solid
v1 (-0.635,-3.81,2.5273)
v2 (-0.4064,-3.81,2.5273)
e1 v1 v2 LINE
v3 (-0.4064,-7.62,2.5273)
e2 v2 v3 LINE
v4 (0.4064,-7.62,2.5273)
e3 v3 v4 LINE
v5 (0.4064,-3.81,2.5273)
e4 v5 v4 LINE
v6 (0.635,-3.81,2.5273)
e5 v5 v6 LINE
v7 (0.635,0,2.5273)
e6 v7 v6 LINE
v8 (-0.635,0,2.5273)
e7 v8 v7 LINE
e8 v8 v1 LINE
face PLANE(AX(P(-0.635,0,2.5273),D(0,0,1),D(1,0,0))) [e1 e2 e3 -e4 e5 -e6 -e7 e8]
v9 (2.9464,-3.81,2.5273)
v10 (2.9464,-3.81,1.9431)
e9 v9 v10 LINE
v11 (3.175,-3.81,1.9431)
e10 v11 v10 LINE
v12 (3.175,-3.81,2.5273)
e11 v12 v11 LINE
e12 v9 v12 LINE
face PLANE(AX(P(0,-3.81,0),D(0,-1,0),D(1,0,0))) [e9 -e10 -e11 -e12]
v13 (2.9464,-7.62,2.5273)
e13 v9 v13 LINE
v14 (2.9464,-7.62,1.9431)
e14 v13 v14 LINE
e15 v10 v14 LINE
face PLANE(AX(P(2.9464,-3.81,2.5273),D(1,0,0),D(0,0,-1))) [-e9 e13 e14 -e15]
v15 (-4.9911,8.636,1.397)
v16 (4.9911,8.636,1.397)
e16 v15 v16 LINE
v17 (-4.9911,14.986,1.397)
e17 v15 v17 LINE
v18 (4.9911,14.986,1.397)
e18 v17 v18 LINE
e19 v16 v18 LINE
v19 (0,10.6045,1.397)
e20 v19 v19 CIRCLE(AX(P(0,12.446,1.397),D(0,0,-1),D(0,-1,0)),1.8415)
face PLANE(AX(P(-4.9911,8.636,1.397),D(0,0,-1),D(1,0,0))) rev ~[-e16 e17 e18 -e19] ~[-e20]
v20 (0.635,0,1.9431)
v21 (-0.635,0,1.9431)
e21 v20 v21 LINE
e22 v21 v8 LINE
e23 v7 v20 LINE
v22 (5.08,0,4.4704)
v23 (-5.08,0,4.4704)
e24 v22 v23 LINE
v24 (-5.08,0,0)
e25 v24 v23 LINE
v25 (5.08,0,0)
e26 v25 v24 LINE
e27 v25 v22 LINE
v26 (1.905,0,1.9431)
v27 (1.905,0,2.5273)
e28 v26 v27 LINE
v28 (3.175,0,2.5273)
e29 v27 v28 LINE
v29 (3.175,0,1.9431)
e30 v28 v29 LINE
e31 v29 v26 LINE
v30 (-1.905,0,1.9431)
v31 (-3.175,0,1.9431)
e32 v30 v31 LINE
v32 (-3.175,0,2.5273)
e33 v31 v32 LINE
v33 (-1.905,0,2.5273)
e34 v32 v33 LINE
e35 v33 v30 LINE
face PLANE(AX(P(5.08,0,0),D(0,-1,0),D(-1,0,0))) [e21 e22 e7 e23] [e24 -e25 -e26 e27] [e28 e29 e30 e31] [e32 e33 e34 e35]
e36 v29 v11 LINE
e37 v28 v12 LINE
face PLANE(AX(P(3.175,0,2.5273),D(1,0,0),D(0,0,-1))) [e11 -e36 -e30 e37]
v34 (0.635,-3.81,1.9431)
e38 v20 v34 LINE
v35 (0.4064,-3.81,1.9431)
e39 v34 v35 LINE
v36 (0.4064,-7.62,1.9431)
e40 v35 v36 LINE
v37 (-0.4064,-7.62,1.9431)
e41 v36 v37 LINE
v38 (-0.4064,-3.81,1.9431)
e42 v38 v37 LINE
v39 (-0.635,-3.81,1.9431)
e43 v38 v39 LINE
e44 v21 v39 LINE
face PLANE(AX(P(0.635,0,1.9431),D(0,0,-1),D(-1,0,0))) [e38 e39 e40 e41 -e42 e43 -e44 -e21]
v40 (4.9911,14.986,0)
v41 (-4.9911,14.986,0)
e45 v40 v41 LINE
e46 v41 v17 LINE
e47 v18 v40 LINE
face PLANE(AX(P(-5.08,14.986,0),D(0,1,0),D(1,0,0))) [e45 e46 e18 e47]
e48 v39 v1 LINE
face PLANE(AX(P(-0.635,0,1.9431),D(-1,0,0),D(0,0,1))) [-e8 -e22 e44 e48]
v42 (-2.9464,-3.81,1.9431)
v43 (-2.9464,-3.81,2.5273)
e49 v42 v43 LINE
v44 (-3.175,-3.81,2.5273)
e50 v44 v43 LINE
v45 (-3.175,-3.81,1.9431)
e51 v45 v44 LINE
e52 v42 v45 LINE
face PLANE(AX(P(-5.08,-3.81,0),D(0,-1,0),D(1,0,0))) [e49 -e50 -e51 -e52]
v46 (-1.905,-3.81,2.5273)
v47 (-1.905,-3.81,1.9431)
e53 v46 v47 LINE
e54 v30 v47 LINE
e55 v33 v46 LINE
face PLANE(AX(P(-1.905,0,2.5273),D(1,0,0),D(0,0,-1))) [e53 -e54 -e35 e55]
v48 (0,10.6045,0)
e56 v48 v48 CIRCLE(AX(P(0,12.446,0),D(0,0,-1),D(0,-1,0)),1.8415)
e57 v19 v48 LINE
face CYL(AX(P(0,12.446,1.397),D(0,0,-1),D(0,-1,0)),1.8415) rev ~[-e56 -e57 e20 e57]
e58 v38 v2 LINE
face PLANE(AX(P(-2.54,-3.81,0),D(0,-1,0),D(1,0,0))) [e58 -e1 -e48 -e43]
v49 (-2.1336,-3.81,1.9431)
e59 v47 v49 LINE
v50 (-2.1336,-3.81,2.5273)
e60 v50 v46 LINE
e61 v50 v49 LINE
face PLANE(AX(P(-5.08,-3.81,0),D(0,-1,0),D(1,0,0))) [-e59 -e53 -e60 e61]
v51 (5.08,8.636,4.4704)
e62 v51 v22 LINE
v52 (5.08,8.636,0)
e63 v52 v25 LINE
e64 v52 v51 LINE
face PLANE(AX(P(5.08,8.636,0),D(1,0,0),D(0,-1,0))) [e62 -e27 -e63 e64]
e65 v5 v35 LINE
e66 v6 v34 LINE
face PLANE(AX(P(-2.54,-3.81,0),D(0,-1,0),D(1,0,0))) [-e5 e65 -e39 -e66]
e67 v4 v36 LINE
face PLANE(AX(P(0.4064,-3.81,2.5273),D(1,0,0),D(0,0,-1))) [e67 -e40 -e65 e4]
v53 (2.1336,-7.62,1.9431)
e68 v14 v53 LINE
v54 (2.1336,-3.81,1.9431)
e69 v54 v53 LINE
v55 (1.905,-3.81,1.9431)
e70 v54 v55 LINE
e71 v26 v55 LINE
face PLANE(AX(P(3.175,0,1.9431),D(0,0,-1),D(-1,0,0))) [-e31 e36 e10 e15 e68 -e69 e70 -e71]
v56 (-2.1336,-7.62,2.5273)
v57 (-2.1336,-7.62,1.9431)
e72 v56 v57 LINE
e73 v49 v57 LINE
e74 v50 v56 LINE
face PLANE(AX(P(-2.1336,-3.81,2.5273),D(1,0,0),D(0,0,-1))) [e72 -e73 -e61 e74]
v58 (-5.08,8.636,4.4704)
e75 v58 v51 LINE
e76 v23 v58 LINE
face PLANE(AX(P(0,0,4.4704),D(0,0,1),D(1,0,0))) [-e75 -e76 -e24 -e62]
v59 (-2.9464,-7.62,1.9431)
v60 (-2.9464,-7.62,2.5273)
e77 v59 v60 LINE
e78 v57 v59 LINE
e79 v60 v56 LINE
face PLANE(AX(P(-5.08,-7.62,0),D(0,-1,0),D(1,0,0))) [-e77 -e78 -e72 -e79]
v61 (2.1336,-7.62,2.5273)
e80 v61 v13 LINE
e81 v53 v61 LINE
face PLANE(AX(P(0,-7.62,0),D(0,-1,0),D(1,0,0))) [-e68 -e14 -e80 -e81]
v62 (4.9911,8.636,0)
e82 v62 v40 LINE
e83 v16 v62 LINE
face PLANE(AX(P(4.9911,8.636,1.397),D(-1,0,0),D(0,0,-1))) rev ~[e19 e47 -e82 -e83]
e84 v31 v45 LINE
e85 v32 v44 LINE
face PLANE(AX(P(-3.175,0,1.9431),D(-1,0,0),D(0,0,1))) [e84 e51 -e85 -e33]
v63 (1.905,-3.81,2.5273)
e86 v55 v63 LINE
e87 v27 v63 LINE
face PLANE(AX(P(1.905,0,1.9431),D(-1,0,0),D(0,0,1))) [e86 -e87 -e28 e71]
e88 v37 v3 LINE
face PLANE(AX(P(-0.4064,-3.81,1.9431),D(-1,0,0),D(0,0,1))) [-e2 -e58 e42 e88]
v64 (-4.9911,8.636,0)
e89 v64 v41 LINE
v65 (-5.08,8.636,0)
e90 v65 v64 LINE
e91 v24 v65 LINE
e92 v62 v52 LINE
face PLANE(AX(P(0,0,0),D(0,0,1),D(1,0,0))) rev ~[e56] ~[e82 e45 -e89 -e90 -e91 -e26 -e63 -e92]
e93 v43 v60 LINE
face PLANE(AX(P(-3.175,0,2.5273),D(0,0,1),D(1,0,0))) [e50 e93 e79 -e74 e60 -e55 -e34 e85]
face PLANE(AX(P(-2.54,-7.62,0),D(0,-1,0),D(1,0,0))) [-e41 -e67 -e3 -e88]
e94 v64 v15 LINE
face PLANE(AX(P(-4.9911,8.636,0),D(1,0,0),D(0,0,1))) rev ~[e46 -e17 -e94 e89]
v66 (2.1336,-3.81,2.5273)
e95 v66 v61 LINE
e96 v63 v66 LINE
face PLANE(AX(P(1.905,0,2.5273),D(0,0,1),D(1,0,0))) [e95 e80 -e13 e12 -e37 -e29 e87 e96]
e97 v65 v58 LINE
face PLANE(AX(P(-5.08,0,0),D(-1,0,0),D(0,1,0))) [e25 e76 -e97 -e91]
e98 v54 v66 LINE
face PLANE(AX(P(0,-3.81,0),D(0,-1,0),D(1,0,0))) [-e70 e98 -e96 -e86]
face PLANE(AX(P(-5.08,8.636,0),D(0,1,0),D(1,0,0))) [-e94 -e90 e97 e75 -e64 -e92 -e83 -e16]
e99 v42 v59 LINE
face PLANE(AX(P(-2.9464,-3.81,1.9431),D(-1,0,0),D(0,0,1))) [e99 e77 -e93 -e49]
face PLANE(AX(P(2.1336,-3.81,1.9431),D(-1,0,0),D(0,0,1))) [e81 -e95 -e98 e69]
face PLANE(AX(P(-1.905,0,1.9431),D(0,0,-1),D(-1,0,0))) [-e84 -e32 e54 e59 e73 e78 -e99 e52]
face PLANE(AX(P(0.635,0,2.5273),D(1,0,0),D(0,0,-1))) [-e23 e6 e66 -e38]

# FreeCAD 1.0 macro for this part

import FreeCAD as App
import Part
import Sketcher
Q = App.Units.Quantity


def add_polygon(sketch, points):
    """Adds a closed chain of lines whose ends are joined by coincident constraints."""
    first, n = sketch.GeometryCount, len(points)
    for a, b in zip(points, points[1:] + points[:1]):
        sketch.addGeometry(Part.LineSegment(App.Vector(*a, 0), App.Vector(*b, 0)), False)
    for i in range(n):
        sketch.addConstraint(Sketcher.Constraint("Coincident", first + i, 2, first + (i + 1) % n, 1))

doc = App.newDocument("Part")
body = doc.addObject("PartDesign::Body", "Body")

sketch1 = doc.addObject("Sketcher::SketchObject", "Sketch")
body.addObject(sketch1)
sketch1.AttachmentSupport = (doc.XY_Plane, [""])
sketch1.MapMode = "FlatFace"
add_polygon(sketch1, [(5, 9), (-5, 9), (-5, 0), (5, 0)])
sketch1.addConstraint(Sketcher.Constraint("Horizontal", 0))
sketch1.addConstraint(Sketcher.Constraint("Vertical", 1))
sketch1.addConstraint(Sketcher.Constraint("Horizontal", 2))
sketch1.addConstraint(Sketcher.Constraint("Vertical", 3))
sketch1.addConstraint(Sketcher.Constraint("Symmetric", 1, 2, 2, 2, -1, 1))
sketch1.addConstraint(Sketcher.Constraint("DistanceX", 0, 2, 0, 1, Q("0.4 in")))
sketch1.addConstraint(Sketcher.Constraint("DistanceY", 1, 2, 1, 1, Q("0.34 in")))
pad1 = doc.addObject("PartDesign::Pad", "Pad")
body.addObject(pad1)
pad1.Profile = sketch1
pad1.Length = Q("0.176 in")

sketch2 = doc.addObject("Sketcher::SketchObject", "Sketch001")
body.addObject(sketch2)
sketch2.AttachmentSupport = (doc.XZ_Plane, [""])
sketch2.MapMode = "FlatFace"
sketch2.AttachmentOffset = App.Placement(App.Vector(0, 0, -0.34 * 25.4), App.Rotation())
add_polygon(sketch2, [(-5, 0), (-5, 1.4), (5, 1.4), (5, 0)])
sketch2.addConstraint(Sketcher.Constraint("Vertical", 0))
sketch2.addConstraint(Sketcher.Constraint("Horizontal", 1))
sketch2.addConstraint(Sketcher.Constraint("Vertical", 2))
sketch2.addConstraint(Sketcher.Constraint("Horizontal", 3))
sketch2.addConstraint(Sketcher.Constraint("Symmetric", 2, 2, 3, 2, -1, 1))
sketch2.addConstraint(Sketcher.Constraint("DistanceX", 1, 1, 1, 2, Q("0.393 in")))
sketch2.addConstraint(Sketcher.Constraint("DistanceY", 0, 1, 0, 2, Q("0.055 in")))
pad2 = doc.addObject("PartDesign::Pad", "Pad001")
body.addObject(pad2)
pad2.Profile = sketch2
pad2.Length = Q("0.25 in")
pad2.Reversed = True

sketch3 = doc.addObject("Sketcher::SketchObject", "Sketch002")
body.addObject(sketch3)
sketch3.AttachmentSupport = (doc.XY_Plane, [""])
sketch3.MapMode = "FlatFace"
sketch3.AttachmentOffset = App.Placement(App.Vector(0, 0, 0.055 * 25.4), App.Rotation())
sketch3.addGeometry(Part.Circle(App.Vector(0, 12.4, 0), App.Vector(0, 0, 1), 1.8), False)
sketch3.addConstraint(Sketcher.Constraint("PointOnObject", 0, 3, -2))
sketch3.addConstraint(Sketcher.Constraint("Diameter", 0, Q("0.145 in")))
sketch3.addConstraint(Sketcher.Constraint("DistanceY", -1, 1, 0, 3, Q("0.49 in")))
doc.recompute()
hole = doc.addObject("PartDesign::Hole", "Hole")
body.addObject(hole)
hole.Profile = sketch3
hole.ThreadType = "None"
hole.Diameter = Q("0.145 in")
hole.DepthType = "ThroughAll"

sketch4 = doc.addObject("Sketcher::SketchObject", "Sketch003")
body.addObject(sketch4)
sketch4.AttachmentSupport = (doc.XZ_Plane, [""])
sketch4.MapMode = "FlatFace"
add_polygon(sketch4, [(-1.9, 2.5), (-3.2, 2.5), (-3.2, 1.9), (-1.9, 1.9)])
sketch4.addConstraint(Sketcher.Constraint("Horizontal", 0))
sketch4.addConstraint(Sketcher.Constraint("Vertical", 1))
sketch4.addConstraint(Sketcher.Constraint("Horizontal", 2))
sketch4.addConstraint(Sketcher.Constraint("Vertical", 3))
sketch4.addConstraint(Sketcher.Constraint("DistanceX", 0, 2, 0, 1, Q("0.05 in")))
sketch4.addConstraint(Sketcher.Constraint("DistanceY", 1, 2, 1, 1, Q("0.023 in")))
sketch4.addConstraint(Sketcher.Constraint("DistanceX", 2, 2, -1, 1, Q("0.075 in")))
sketch4.addConstraint(Sketcher.Constraint("DistanceY", -1, 1, 0, 2, Q("0.0995 in")))
pad3 = doc.addObject("PartDesign::Pad", "Pad002")
body.addObject(pad3)
pad3.Profile = sketch4
pad3.Length = Q("0.15 in")

sketch5 = doc.addObject("Sketcher::SketchObject", "Sketch004")
body.addObject(sketch5)
sketch5.AttachmentSupport = (doc.XZ_Plane, [""])
sketch5.MapMode = "FlatFace"
sketch5.AttachmentOffset = App.Placement(App.Vector(0, 0, 0.15 * 25.4), App.Rotation())
add_polygon(sketch5, [(-2.1, 2.5), (-2.9, 2.5), (-2.9, 1.9), (-2.1, 1.9)])
sketch5.addConstraint(Sketcher.Constraint("Horizontal", 0))
sketch5.addConstraint(Sketcher.Constraint("Vertical", 1))
sketch5.addConstraint(Sketcher.Constraint("Horizontal", 2))
sketch5.addConstraint(Sketcher.Constraint("Vertical", 3))
sketch5.addConstraint(Sketcher.Constraint("DistanceX", 0, 2, 0, 1, Q("0.032 in")))
sketch5.addConstraint(Sketcher.Constraint("DistanceY", 1, 2, 1, 1, Q("0.023 in")))
sketch5.addConstraint(Sketcher.Constraint("DistanceX", 0, 2, -1, 1, Q("0.116 in")))
sketch5.addConstraint(Sketcher.Constraint("DistanceY", -1, 1, 0, 2, Q("0.0995 in")))
pad4 = doc.addObject("PartDesign::Pad", "Pad003")
body.addObject(pad4)
pad4.Profile = sketch5
pad4.Length = Q("0.15 in")
doc.recompute()

linearpattern = doc.addObject("PartDesign::LinearPattern", "LinearPattern")
body.addObject(linearpattern)
linearpattern.Originals = [pad4, pad3]
linearpattern.Direction = (doc.X_Axis, [""])
linearpattern.Mode = "offset"
linearpattern.Offset = Q("0.1 in")
linearpattern.Occurrences = 3
body.Tip = linearpattern

doc.recompute()
